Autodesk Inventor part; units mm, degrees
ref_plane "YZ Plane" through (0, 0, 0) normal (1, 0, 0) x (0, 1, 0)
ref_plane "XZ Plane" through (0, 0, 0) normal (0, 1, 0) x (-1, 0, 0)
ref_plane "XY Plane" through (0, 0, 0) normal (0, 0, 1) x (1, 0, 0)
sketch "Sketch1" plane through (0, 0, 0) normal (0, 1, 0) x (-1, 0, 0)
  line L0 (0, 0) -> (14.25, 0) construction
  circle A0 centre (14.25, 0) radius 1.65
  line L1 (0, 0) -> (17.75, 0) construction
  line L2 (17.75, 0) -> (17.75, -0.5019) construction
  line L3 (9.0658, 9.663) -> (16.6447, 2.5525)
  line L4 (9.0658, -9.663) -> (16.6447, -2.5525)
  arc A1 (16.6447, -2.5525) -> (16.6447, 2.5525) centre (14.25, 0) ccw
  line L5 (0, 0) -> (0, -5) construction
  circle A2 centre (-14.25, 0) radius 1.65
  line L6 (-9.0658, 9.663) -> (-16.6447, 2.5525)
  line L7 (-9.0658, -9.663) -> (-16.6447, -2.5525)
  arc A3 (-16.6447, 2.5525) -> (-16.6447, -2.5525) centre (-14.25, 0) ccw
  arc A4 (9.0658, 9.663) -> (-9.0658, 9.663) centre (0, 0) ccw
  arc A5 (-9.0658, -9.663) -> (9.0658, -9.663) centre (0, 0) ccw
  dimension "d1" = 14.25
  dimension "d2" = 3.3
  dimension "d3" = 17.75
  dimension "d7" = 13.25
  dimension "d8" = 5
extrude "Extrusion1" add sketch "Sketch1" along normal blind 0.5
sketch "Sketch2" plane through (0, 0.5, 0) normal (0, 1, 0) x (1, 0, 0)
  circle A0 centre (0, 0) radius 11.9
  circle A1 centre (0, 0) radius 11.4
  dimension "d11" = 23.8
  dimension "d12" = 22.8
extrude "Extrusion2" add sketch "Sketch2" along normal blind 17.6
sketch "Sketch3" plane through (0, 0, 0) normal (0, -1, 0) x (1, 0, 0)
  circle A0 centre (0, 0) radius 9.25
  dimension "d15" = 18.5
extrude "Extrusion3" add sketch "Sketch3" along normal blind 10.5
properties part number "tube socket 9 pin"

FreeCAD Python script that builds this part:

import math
import FreeCAD as App
import Part
import Sketcher

doc = App.newDocument("Part")
body = doc.addObject("PartDesign::Body", "Body")

# Sketch on XZ plane
sketch1 = doc.addObject("Sketcher::SketchObject", "Sketch")
body.addObject(sketch1)
sketch1.AttachmentSupport = (doc.XZ_Plane, [""])
sketch1.MapMode = "FlatFace"
sketch1.addGeometry([
    Part.LineSegment(App.Vector(-16.6447, 2.5525, 0), App.Vector(-9.0658, 9.663, 0)),  # 0
    Part.ArcOfCircle(Part.Circle(App.Vector(0, 0, 0), App.Vector(0, 0, 1), 13.249992), math.radians(46.826356), math.radians(133.173644)),  # 1
    Part.LineSegment(App.Vector(9.0658, 9.663, 0), App.Vector(16.6447, 2.5525, 0)),  # 2
    Part.ArcOfCircle(Part.Circle(App.Vector(14.25, 0, 0), App.Vector(0, 0, 1), 3.499978), math.radians(-46.826934), math.radians(46.826934)),  # 3
    Part.LineSegment(App.Vector(16.6447, -2.5525, 0), App.Vector(9.0658, -9.663, 0)),  # 4
    Part.ArcOfCircle(Part.Circle(App.Vector(0, 0, 0), App.Vector(0, 0, 1), 13.249992), math.radians(-133.173644), math.radians(-46.826356)),  # 5
    Part.LineSegment(App.Vector(-9.0658, -9.663, 0), App.Vector(-16.6447, -2.5525, 0)),  # 6
    Part.ArcOfCircle(Part.Circle(App.Vector(-14.25, 0, 0), App.Vector(0, 0, 1), 3.499978), math.radians(133.173066), math.radians(226.826934)),  # 7
    Part.Circle(App.Vector(14.25, 0, 0), App.Vector(0, 0, 1), 1.65),  # 8
    Part.Circle(App.Vector(-14.25, 0, 0), App.Vector(0, 0, 1), 1.65),  # 9
], False)
sketch1.addConstraint([
    Sketcher.Constraint("Tangent", 0, 2, 1, 2),
    Sketcher.Constraint("Tangent", 1, 1, 2, 1),
    Sketcher.Constraint("Tangent", 2, 2, 3, 2),
    Sketcher.Constraint("Tangent", 3, 1, 4, 1),
    Sketcher.Constraint("Tangent", 4, 2, 5, 2),
    Sketcher.Constraint("Tangent", 5, 1, 6, 1),
    Sketcher.Constraint("Tangent", 6, 2, 7, 2),
    Sketcher.Constraint("Tangent", 7, 1, 0, 1),
    Sketcher.Constraint("Coincident", 1, 3, -1, 1),
    Sketcher.Constraint("Coincident", 5, 3, -1, 1),
    Sketcher.Constraint("Coincident", 8, 3, 3, 3),
    Sketcher.Constraint("Coincident", 9, 3, 7, 3),
    Sketcher.Constraint("Equal", 1, 5),
    Sketcher.Constraint("Equal", 3, 7),
    Sketcher.Constraint("Equal", 8, 9),
    Sketcher.Constraint("Symmetric", 3, 3, 7, 3, -1, 1),
    Sketcher.Constraint("PointOnObject", 3, 3, -1),
    Sketcher.Constraint("Diameter", 8, 3.3),
    Sketcher.Constraint("Radius", 1, 13.25),
    Sketcher.Constraint("Radius", 3, 3.5),
    Sketcher.Constraint("DistanceX", -1, 1, 3, 3, 14.25),
])
pad1 = doc.addObject("PartDesign::Pad", "Pad")
body.addObject(pad1)
pad1.Profile = sketch1
pad1.Length = 0.5
pad1.Reversed = True

# Sketch on XZ plane
sketch2 = doc.addObject("Sketcher::SketchObject", "Sketch001")
body.addObject(sketch2)
sketch2.AttachmentSupport = (doc.XZ_Plane, [""])
sketch2.MapMode = "FlatFace"
sketch2.AttachmentOffset = App.Placement(App.Vector(0, 0, -0.5), App.Rotation())
sketch2.addGeometry([
    Part.Circle(App.Vector(0, 0, 0), App.Vector(0, 0, 1), 11.9),
    Part.Circle(App.Vector(0, 0, 0), App.Vector(0, 0, 1), 11.4),
], False)
sketch2.addConstraint([
    Sketcher.Constraint("Coincident", 0, 3, -1, 1),
    Sketcher.Constraint("Coincident", 1, 3, -1, 1),
    Sketcher.Constraint("Diameter", 0, 23.8),
    Sketcher.Constraint("Diameter", 1, 22.8),
])
pad2 = doc.addObject("PartDesign::Pad", "Pad001")
body.addObject(pad2)
pad2.Profile = sketch2
pad2.Length = 17.6
pad2.Reversed = True

# Sketch on XZ plane
sketch3 = doc.addObject("Sketcher::SketchObject", "Sketch002")
body.addObject(sketch3)
sketch3.AttachmentSupport = (doc.XZ_Plane, [""])
sketch3.MapMode = "FlatFace"
sketch3.addGeometry(Part.Circle(App.Vector(0, 0, 0), App.Vector(0, 0, 1), 9.25), False)
sketch3.addConstraint([
    Sketcher.Constraint("Coincident", 0, 3, -1, 1),
    Sketcher.Constraint("Diameter", 0, 18.5),
])
pad3 = doc.addObject("PartDesign::Pad", "Pad002")
body.addObject(pad3)
pad3.Profile = sketch3
pad3.Length = 10.5

doc.recompute()
